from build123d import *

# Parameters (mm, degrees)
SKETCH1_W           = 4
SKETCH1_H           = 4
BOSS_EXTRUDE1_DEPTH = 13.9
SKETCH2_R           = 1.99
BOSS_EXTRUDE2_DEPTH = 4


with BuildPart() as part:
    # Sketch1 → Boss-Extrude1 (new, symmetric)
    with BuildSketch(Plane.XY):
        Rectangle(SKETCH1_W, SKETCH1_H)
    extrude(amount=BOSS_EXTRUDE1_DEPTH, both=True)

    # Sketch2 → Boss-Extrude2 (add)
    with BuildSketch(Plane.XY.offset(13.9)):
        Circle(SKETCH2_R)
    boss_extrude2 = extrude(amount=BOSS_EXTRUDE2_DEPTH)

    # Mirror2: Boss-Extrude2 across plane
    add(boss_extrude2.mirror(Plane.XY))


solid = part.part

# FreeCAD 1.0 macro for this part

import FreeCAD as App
import Part
import Sketcher
Q = App.Units.Quantity


def add_polygon(sketch, points):
    """Adds a closed chain of lines whose ends are joined by coincident constraints."""
    first, n = sketch.GeometryCount, len(points)
    for a, b in zip(points, points[1:] + points[:1]):
        sketch.addGeometry(Part.LineSegment(App.Vector(*a, 0), App.Vector(*b, 0)), False)
    for i in range(n):
        sketch.addConstraint(Sketcher.Constraint("Coincident", first + i, 2, first + (i + 1) % n, 1))

doc = App.newDocument("Part")
body = doc.addObject("PartDesign::Body", "Body")

# Sketch on XY plane
sketch1 = body.newObject("Sketcher::SketchObject", "Sketch")
sketch1.AttachmentSupport = (doc.getObject("XY_Plane"), [""])
sketch1.MapMode = "FlatFace"
add_polygon(sketch1, [(-2, 2), (-2, -2), (2, -2), (2, 2)])  # lines 0-3
sketch1.addConstraint(Sketcher.Constraint("Vertical", 0))
sketch1.addConstraint(Sketcher.Constraint("Horizontal", 1))
sketch1.addConstraint(Sketcher.Constraint("Vertical", 2))
sketch1.addConstraint(Sketcher.Constraint("Horizontal", 3))
sketch1.addConstraint(Sketcher.Constraint("Symmetric", 0, 2, 2, 2, -1, 1))
sketch1.addConstraint(Sketcher.Constraint("Equal", 3, 0))
sketch1.addConstraint(Sketcher.Constraint("DistanceX", 1, 1, 1, 2, Q("4 mm")))
pad1 = body.newObject("PartDesign::Pad", "Pad")
pad1.Profile = sketch1
pad1.Length = 27.8
pad1.Midplane = True

# Sketch on XY plane
sketch2 = body.newObject("Sketcher::SketchObject", "Sketch001")
sketch2.AttachmentSupport = (doc.getObject("XY_Plane"), [""])
sketch2.MapMode = "FlatFace"
sketch2.AttachmentOffset = App.Placement(App.Vector(0, 0, 13.9), App.Rotation())
sketch2.addGeometry(Part.Circle(App.Vector(0, 0, 0), App.Vector(0, 0, 1), 2), False)
sketch2.addConstraint(Sketcher.Constraint("Coincident", 0, 3, -1, 1))
sketch2.addConstraint(Sketcher.Constraint("Diameter", 0, Q("3.98 mm")))
pad2 = body.newObject("PartDesign::Pad", "Pad001")
pad2.Profile = sketch2
pad2.Length = 4
doc.recompute()

mirrored = body.newObject("PartDesign::Mirrored", "Mirrored")
mirrored.Originals = [pad2]
mirrored.MirrorPlane = (doc.getObject("XY_Plane"), [""])
body.Tip = mirrored

doc.recompute()
